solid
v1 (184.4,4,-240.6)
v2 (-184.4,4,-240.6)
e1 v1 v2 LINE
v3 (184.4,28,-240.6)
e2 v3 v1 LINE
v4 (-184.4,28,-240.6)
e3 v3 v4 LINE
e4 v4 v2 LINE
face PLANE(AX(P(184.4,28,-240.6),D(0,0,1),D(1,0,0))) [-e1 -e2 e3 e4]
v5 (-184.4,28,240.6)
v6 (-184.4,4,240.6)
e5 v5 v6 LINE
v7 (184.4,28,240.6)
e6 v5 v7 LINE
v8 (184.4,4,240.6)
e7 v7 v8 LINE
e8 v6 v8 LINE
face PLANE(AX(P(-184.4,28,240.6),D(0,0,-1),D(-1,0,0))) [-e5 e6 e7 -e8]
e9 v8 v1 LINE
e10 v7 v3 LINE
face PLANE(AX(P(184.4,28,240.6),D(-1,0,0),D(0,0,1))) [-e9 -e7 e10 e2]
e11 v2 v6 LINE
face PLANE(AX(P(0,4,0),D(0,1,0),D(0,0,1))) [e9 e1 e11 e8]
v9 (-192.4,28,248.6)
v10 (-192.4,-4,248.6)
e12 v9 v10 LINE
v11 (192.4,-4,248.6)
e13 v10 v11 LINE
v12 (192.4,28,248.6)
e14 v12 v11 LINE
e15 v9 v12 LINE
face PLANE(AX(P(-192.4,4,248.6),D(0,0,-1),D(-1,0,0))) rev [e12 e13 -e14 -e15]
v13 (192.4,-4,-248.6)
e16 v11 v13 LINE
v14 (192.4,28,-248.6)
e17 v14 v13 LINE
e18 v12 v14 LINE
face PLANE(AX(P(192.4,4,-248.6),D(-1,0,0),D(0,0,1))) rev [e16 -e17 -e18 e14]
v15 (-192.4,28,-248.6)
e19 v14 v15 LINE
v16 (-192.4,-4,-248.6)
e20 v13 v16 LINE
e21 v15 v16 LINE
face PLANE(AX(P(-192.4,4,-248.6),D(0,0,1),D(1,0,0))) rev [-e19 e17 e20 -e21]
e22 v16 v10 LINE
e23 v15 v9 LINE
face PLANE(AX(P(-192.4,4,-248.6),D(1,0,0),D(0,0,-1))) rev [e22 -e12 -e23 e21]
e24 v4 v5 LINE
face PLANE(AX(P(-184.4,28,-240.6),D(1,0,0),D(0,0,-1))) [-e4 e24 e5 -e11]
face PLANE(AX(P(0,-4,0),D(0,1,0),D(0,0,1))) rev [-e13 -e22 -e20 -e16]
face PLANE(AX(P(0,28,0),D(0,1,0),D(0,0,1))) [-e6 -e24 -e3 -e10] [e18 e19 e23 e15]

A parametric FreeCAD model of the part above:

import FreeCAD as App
import Part
import Sketcher
Q = App.Units.Quantity

doc = App.newDocument("Part")
body = doc.addObject("PartDesign::Body", "Body")

sketch1 = body.newObject("Sketcher::SketchObject", "Sketch")
sketch1.AttachmentSupport = (doc.getObject("XZ_Plane"), [""])
sketch1.MapMode = "FlatFace"
sketch1.addGeometry(Part.LineSegment(App.Vector(-192, -249, 0), App.Vector(-192, 249, 0)), False)
sketch1.addGeometry(Part.LineSegment(App.Vector(-192, 249, 0), App.Vector(192, 249, 0)), False)
sketch1.addGeometry(Part.LineSegment(App.Vector(192, 249, 0), App.Vector(192, -249, 0)), False)
sketch1.addGeometry(Part.LineSegment(App.Vector(192, -249, 0), App.Vector(-192, -249, 0)), False)
sketch1.addConstraint(Sketcher.Constraint("Coincident", 0, 2, 1, 1))
sketch1.addConstraint(Sketcher.Constraint("Coincident", 1, 2, 2, 1))
sketch1.addConstraint(Sketcher.Constraint("Coincident", 2, 2, 3, 1))
sketch1.addConstraint(Sketcher.Constraint("Coincident", 3, 2, 0, 1))
sketch1.addConstraint(Sketcher.Constraint("Vertical", 0))
sketch1.addConstraint(Sketcher.Constraint("Horizontal", 1))
sketch1.addConstraint(Sketcher.Constraint("Vertical", 2))
sketch1.addConstraint(Sketcher.Constraint("Horizontal", 3))
sketch1.addConstraint(Sketcher.Constraint("Symmetric", 0, 2, 2, 2, -1, 1))
sketch1.addConstraint(Sketcher.Constraint("DistanceX", 1, 1, 1, 2, Q("384.8 mm")))
sketch1.addConstraint(Sketcher.Constraint("DistanceY", 0, 1, 0, 2, Q("497.2 mm")))
pad1 = body.newObject("PartDesign::Pad", "Pad")
pad1.Profile = sketch1
pad1.Length = 8
pad1.Midplane = True

sketch2 = body.newObject("Sketcher::SketchObject", "Sketch001")
sketch2.AttachmentSupport = (doc.getObject("XZ_Plane"), [""])
sketch2.MapMode = "FlatFace"
sketch2.AttachmentOffset = App.Placement(App.Vector(0, 0, -4), App.Rotation())
sketch2.addGeometry(Part.LineSegment(App.Vector(-192, -249, 0), App.Vector(-192, 249, 0)), False)
sketch2.addGeometry(Part.LineSegment(App.Vector(-192, 249, 0), App.Vector(192, 249, 0)), False)
sketch2.addGeometry(Part.LineSegment(App.Vector(192, 249, 0), App.Vector(192, -249, 0)), False)
sketch2.addGeometry(Part.LineSegment(App.Vector(192, -249, 0), App.Vector(-192, -249, 0)), False)
sketch2.addGeometry(Part.LineSegment(App.Vector(184, 241, 0), App.Vector(-184, 241, 0)), False)
sketch2.addGeometry(Part.LineSegment(App.Vector(-184, 241, 0), App.Vector(-184, -241, 0)), False)
sketch2.addGeometry(Part.LineSegment(App.Vector(-184, -241, 0), App.Vector(184, -241, 0)), False)
sketch2.addGeometry(Part.LineSegment(App.Vector(184, -241, 0), App.Vector(184, 241, 0)), False)
sketch2.addConstraint(Sketcher.Constraint("Coincident", 0, 2, 1, 1))
sketch2.addConstraint(Sketcher.Constraint("Coincident", 1, 2, 2, 1))
sketch2.addConstraint(Sketcher.Constraint("Coincident", 2, 2, 3, 1))
sketch2.addConstraint(Sketcher.Constraint("Coincident", 3, 2, 0, 1))
sketch2.addConstraint(Sketcher.Constraint("Coincident", 4, 2, 5, 1))
sketch2.addConstraint(Sketcher.Constraint("Coincident", 5, 2, 6, 1))
sketch2.addConstraint(Sketcher.Constraint("Coincident", 6, 2, 7, 1))
sketch2.addConstraint(Sketcher.Constraint("Coincident", 7, 2, 4, 1))
sketch2.addConstraint(Sketcher.Constraint("Vertical", 0))
sketch2.addConstraint(Sketcher.Constraint("Horizontal", 1))
sketch2.addConstraint(Sketcher.Constraint("Vertical", 2))
sketch2.addConstraint(Sketcher.Constraint("Horizontal", 3))
sketch2.addConstraint(Sketcher.Constraint("Horizontal", 4))
sketch2.addConstraint(Sketcher.Constraint("Vertical", 5))
sketch2.addConstraint(Sketcher.Constraint("Horizontal", 6))
sketch2.addConstraint(Sketcher.Constraint("Vertical", 7))
sketch2.addConstraint(Sketcher.Constraint("Symmetric", 0, 2, 2, 2, -1, 1))
sketch2.addConstraint(Sketcher.Constraint("Symmetric", 4, 2, 6, 2, -1, 1))
sketch2.addConstraint(Sketcher.Constraint("DistanceX", 1, 1, 1, 2, Q("384.8 mm")))
sketch2.addConstraint(Sketcher.Constraint("DistanceX", 4, 2, 4, 1, Q("368.8 mm")))
sketch2.addConstraint(Sketcher.Constraint("DistanceY", 0, 1, 0, 2, Q("497.2 mm")))
sketch2.addConstraint(Sketcher.Constraint("DistanceY", 5, 2, 5, 1, Q("481.2 mm")))
pad2 = body.newObject("PartDesign::Pad", "Pad001")
pad2.Profile = sketch2
pad2.Length = 24
pad2.Reversed = True

doc.recompute()
